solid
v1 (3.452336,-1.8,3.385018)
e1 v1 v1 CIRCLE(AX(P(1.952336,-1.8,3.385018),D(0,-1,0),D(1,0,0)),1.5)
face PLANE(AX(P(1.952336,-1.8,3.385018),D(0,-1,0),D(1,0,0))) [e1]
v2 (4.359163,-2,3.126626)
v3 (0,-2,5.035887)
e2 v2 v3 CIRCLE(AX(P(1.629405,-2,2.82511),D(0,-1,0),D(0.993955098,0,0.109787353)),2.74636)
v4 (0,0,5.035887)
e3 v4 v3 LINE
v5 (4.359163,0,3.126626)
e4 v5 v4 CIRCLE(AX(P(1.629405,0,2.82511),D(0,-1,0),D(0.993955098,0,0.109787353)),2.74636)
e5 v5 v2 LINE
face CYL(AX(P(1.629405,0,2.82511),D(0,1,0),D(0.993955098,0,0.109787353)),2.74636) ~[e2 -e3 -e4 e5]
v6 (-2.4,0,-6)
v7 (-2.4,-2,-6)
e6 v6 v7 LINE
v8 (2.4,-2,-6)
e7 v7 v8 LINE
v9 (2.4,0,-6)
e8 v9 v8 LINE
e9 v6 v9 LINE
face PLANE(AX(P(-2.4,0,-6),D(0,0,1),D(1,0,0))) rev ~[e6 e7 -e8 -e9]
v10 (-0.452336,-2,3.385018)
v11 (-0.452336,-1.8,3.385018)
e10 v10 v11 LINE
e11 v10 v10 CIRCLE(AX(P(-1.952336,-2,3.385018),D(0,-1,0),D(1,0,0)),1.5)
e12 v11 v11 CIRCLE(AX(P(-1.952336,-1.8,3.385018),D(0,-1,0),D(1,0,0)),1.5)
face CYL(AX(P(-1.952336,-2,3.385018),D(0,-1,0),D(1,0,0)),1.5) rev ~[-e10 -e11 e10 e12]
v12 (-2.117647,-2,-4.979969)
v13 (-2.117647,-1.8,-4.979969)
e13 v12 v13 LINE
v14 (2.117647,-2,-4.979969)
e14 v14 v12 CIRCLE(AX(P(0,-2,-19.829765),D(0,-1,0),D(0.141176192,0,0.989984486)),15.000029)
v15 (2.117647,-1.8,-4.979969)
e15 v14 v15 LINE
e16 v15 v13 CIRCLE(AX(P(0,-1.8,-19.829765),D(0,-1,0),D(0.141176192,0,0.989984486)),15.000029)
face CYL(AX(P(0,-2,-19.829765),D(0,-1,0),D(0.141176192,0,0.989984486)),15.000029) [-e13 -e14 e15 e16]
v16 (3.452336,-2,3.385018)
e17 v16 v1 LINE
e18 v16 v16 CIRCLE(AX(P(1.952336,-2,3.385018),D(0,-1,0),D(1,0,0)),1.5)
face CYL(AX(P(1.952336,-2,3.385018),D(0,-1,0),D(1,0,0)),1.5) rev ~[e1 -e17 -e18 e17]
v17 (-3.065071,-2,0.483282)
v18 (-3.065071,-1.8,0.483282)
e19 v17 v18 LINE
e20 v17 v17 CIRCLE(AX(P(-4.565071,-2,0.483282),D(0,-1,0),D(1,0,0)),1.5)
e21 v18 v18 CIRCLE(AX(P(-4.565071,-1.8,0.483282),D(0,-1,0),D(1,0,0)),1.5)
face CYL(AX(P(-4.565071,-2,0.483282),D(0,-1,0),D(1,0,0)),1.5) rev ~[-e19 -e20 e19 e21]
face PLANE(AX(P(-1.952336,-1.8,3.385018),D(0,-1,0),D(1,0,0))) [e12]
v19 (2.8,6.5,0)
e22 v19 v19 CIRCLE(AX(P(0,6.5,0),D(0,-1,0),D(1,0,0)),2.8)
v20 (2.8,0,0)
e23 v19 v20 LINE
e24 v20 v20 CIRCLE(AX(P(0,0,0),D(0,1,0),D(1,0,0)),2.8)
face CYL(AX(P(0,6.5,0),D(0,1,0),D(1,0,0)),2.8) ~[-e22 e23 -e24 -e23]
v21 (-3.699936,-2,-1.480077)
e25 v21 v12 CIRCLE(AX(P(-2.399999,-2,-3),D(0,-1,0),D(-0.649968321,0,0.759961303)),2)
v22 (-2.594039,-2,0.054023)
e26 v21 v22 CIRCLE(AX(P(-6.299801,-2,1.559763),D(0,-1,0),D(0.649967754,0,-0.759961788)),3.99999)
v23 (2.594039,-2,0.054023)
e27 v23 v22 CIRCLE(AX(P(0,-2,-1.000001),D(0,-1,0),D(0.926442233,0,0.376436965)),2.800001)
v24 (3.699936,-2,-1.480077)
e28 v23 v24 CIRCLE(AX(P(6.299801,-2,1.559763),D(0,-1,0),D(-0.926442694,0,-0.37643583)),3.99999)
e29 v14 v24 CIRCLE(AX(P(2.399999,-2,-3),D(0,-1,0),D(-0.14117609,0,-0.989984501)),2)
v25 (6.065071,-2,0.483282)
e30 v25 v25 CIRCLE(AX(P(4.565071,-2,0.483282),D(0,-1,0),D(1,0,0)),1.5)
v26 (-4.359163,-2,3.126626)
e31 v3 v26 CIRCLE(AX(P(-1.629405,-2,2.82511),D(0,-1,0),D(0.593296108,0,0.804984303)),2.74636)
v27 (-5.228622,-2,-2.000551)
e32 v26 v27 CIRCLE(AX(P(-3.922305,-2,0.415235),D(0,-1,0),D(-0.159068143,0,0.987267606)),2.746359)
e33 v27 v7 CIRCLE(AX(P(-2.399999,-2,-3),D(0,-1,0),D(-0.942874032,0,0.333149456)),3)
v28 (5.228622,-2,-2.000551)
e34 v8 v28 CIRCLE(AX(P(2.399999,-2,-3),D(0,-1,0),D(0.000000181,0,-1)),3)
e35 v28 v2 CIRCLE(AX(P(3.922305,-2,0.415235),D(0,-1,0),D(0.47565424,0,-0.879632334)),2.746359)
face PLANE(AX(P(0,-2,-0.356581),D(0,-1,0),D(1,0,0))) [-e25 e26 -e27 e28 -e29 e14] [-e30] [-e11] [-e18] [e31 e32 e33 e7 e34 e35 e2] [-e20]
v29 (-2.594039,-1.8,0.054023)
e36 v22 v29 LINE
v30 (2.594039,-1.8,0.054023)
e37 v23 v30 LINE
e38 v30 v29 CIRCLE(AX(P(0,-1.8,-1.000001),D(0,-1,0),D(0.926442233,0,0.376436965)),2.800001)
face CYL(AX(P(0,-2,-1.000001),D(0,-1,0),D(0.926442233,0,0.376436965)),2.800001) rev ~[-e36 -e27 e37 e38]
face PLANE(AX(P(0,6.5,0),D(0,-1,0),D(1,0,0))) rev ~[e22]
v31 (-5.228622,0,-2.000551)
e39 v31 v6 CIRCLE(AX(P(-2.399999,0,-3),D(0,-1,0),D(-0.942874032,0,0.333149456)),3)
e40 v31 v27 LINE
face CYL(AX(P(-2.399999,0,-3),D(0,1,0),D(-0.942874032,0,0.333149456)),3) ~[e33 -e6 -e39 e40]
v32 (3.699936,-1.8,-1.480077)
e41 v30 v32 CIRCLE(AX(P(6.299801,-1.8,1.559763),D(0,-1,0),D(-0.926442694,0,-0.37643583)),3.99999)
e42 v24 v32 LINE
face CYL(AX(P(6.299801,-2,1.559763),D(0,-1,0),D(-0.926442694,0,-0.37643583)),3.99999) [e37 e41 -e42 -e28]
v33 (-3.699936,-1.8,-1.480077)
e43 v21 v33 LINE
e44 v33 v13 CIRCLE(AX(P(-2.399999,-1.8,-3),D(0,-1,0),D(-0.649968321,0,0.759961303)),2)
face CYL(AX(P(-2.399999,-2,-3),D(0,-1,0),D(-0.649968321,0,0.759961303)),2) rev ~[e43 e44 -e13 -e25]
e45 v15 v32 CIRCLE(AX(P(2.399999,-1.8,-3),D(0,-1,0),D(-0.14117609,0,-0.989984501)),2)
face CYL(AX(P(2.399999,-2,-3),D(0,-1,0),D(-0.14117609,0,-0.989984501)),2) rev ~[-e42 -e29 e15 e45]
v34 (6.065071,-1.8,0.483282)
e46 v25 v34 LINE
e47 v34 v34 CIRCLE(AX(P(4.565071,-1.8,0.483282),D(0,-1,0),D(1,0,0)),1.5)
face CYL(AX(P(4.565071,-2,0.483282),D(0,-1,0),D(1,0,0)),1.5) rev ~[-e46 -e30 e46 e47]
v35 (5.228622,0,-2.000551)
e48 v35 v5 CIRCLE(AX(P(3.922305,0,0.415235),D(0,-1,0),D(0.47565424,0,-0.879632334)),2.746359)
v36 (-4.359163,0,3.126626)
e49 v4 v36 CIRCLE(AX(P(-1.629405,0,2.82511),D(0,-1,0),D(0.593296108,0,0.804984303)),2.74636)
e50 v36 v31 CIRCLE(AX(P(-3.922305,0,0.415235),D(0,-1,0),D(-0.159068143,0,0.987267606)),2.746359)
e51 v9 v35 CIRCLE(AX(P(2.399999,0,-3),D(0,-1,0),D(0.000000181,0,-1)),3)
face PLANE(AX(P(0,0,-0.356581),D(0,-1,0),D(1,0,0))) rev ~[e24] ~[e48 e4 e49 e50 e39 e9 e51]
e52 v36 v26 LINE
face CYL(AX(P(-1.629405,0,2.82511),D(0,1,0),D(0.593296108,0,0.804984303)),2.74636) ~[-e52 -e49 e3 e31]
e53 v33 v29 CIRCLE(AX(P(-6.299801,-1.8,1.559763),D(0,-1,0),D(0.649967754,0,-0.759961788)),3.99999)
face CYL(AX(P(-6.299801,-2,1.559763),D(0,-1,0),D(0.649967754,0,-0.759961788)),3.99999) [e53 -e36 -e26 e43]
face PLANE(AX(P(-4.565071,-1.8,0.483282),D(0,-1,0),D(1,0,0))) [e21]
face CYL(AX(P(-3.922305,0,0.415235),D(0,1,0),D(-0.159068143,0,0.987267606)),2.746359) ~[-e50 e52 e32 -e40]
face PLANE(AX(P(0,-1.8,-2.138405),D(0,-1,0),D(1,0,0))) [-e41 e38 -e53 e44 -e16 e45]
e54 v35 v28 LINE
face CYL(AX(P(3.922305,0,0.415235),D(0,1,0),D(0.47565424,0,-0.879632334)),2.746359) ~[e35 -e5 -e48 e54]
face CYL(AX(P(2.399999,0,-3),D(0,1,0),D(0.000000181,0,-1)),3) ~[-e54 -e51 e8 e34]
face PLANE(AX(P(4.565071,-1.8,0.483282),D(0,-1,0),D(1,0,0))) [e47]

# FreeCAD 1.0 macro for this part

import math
import FreeCAD as App
import Part
import Sketcher
from FreeCAD import Vector

doc = App.newDocument("Part")
body = doc.addObject("PartDesign::Body", "Body")

sketch1 = body.newObject("Sketcher::SketchObject", "Sketch")
sketch1.AttachmentSupport = (doc.getObject("XZ_Plane"), [""])
sketch1.MapMode = "FlatFace"
sketch1.AttachmentOffset = App.Placement(Vector(0, 0, -6.5), App.Rotation())
sketch1.addGeometry(Part.Circle(Vector(0, 0, 0), Vector(0, 0, 1), 2.8), False)
sketch1.addConstraint(Sketcher.Constraint("Coincident", 0, 3, -1, 1))
sketch1.addConstraint(Sketcher.Constraint("Diameter", 0, 5.6))
pad1 = body.newObject("PartDesign::Pad", "Pad")
pad1.Profile = sketch1
pad1.Length = 7.5

sketch2 = body.newObject("Sketcher::SketchObject", "Sketch001")
sketch2.AttachmentSupport = (doc.getObject("XZ_Plane"), [""])
sketch2.MapMode = "FlatFace"
sketch2.addGeometry(Part.ArcOfCircle(Part.Circle(Vector(-3.922305, 0.415235, 0), Vector(0, 0, 1), 2.746359), math.radians(99.152812), math.radians(241.598044)), False)
sketch2.addGeometry(Part.ArcOfCircle(Part.Circle(Vector(-2.399999, -3, 0), Vector(0, 0, 1), 3), math.radians(160.539953), math.radians(269.99999)), False)
sketch2.addGeometry(Part.LineSegment(Vector(-2.4, -6, 0), Vector(2.4, -6, 0)), False)
sketch2.addGeometry(Part.ArcOfCircle(Part.Circle(Vector(2.399999, -3, 0), Vector(0, 0, 1), 3), math.radians(-89.99999), math.radians(19.460047)), False)
sketch2.addGeometry(Part.ArcOfCircle(Part.Circle(Vector(3.922305, 0.415235, 0), Vector(0, 0, 1), 2.746359), math.radians(-61.598044), math.radians(80.847188)), False)
sketch2.addGeometry(Part.ArcOfCircle(Part.Circle(Vector(1.629405, 2.82511, 0), Vector(0, 0, 1), 2.74636), math.radians(6.303058), math.radians(126.391261)), False)
sketch2.addGeometry(Part.ArcOfCircle(Part.Circle(Vector(-1.629405, 2.82511, 0), Vector(0, 0, 1), 2.74636), math.radians(53.608739), math.radians(173.696942)), False)
sketch2.addConstraint(Sketcher.Constraint("Coincident", 0, 2, 1, 1))
sketch2.addConstraint(Sketcher.Constraint("Tangent", 1, 2, 2, 1))
sketch2.addConstraint(Sketcher.Constraint("Tangent", 2, 2, 3, 1))
sketch2.addConstraint(Sketcher.Constraint("Coincident", 3, 2, 4, 1))
sketch2.addConstraint(Sketcher.Constraint("Coincident", 4, 2, 5, 1))
sketch2.addConstraint(Sketcher.Constraint("Coincident", 5, 2, 6, 1))
sketch2.addConstraint(Sketcher.Constraint("Coincident", 6, 2, 0, 1))
sketch2.addConstraint(Sketcher.Constraint("Horizontal", 2))
sketch2.addConstraint(Sketcher.Constraint("Equal", 1, 3))
sketch2.addConstraint(Sketcher.Constraint("Equal", 0, 4))
sketch2.addConstraint(Sketcher.Constraint("Equal", 4, 5))
sketch2.addConstraint(Sketcher.Constraint("Equal", 5, 6))
sketch2.addConstraint(Sketcher.Constraint("Symmetric", 0, 3, 4, 3, -2))
sketch2.addConstraint(Sketcher.Constraint("Symmetric", 5, 3, 6, 3, -2))
sketch2.addConstraint(Sketcher.Constraint("Horizontal", 0, 2, 3, 2))
sketch2.addConstraint(Sketcher.Constraint("Radius", 1, 3.0))
sketch2.addConstraint(Sketcher.Constraint("DistanceX", 2, 1, 2, 2, 4.8))
sketch2.addConstraint(Sketcher.Constraint("DistanceY", 1, 3, -1, 1, 3.0))
sketch2.addConstraint(Sketcher.Constraint("Radius", 0, 2.746359))
sketch2.addConstraint(Sketcher.Constraint("DistanceX", 5, 3, 4, 3, 2.2929))
sketch2.addConstraint(Sketcher.Constraint("DistanceY", -1, 1, 5, 3, 2.82511))
sketch2.addConstraint(Sketcher.Constraint("DistanceX", 0, 2, -1, 1, 5.228622))
sketch2.addConstraint(Sketcher.Constraint("DistanceX", 0, 3, 4, 3, 7.84461))
pad2 = body.newObject("PartDesign::Pad", "Pad001")
pad2.Profile = sketch2
pad2.Length = 2

sketch3 = body.newObject("Sketcher::SketchObject", "Sketch002")
sketch3.AttachmentSupport = (doc.getObject("XZ_Plane"), [""])
sketch3.MapMode = "FlatFace"
sketch3.AttachmentOffset = App.Placement(Vector(0, 0, 2), App.Rotation())
sketch3.addGeometry(Part.Circle(Vector(-4.565071, 0.483282, 0), Vector(0, 0, 1), 1.5), False)
sketch3.addGeometry(Part.Circle(Vector(4.565071, 0.483282, 0), Vector(0, 0, 1), 1.5), False)
sketch3.addGeometry(Part.Circle(Vector(-1.952336, 3.385018, 0), Vector(0, 0, 1), 1.5), False)
sketch3.addGeometry(Part.Circle(Vector(1.952336, 3.385018, 0), Vector(0, 0, 1), 1.5), False)
sketch3.addGeometry(Part.ArcOfCircle(Part.Circle(Vector(0, -1.000001, 0), Vector(0, 0, 1), 2.800001), math.radians(22.113154), math.radians(157.886846)), False)
sketch3.addGeometry(Part.ArcOfCircle(Part.Circle(Vector(-6.299801, 1.559763, 0), Vector(0, 0, 1), 3.99999), math.radians(-49.460829), math.radians(-22.113084)), False)
sketch3.addGeometry(Part.ArcOfCircle(Part.Circle(Vector(-2.399999, -3, 0), Vector(0, 0, 1), 2), math.radians(130.539213), math.radians(278.115907)), False)
sketch3.addGeometry(Part.ArcOfCircle(Part.Circle(Vector(0, -19.829765, 0), Vector(0, 0, 1), 15.000029), math.radians(81.884087), math.radians(98.115913)), False)
sketch3.addGeometry(Part.ArcOfCircle(Part.Circle(Vector(2.399999, -3, 0), Vector(0, 0, 1), 2), math.radians(-98.115907), math.radians(49.460787)), False)
sketch3.addGeometry(Part.ArcOfCircle(Part.Circle(Vector(6.299801, 1.559763, 0), Vector(0, 0, 1), 3.99999), math.radians(-157.886916), math.radians(-130.539171)), False)
sketch3.addConstraint(Sketcher.Constraint("Tangent", 4, 2, 5, 2))
sketch3.addConstraint(Sketcher.Constraint("Tangent", 5, 1, 6, 1))
sketch3.addConstraint(Sketcher.Constraint("Tangent", 6, 2, 7, 2))
sketch3.addConstraint(Sketcher.Constraint("Tangent", 7, 1, 8, 1))
sketch3.addConstraint(Sketcher.Constraint("Tangent", 8, 2, 9, 2))
sketch3.addConstraint(Sketcher.Constraint("Tangent", 9, 1, 4, 1))
sketch3.addConstraint(Sketcher.Constraint("Equal", 0, 1))
sketch3.addConstraint(Sketcher.Constraint("Equal", 1, 2))
sketch3.addConstraint(Sketcher.Constraint("Equal", 2, 3))
sketch3.addConstraint(Sketcher.Constraint("Equal", 6, 8))
sketch3.addConstraint(Sketcher.Constraint("Equal", 5, 9))
sketch3.addConstraint(Sketcher.Constraint("Symmetric", 0, 3, 1, 3, -2))
sketch3.addConstraint(Sketcher.Constraint("Symmetric", 2, 3, 3, 3, -2))
sketch3.addConstraint(Sketcher.Constraint("Symmetric", 6, 3, 8, 3, -2))
sketch3.addConstraint(Sketcher.Constraint("PointOnObject", 4, 3, -2))
sketch3.addConstraint(Sketcher.Constraint("Diameter", 0, 3.0))
sketch3.addConstraint(Sketcher.Constraint("Radius", 6, 2.0))
sketch3.addConstraint(Sketcher.Constraint("Radius", 4, 2.800001))
sketch3.addConstraint(Sketcher.Constraint("DistanceY", 4, 3, -1, 1, 1.000001))
sketch3.addConstraint(Sketcher.Constraint("DistanceY", 6, 3, -1, 1, 3.0))
sketch3.addConstraint(Sketcher.Constraint("DistanceX", 6, 3, -1, 1, 2.399999))
sketch3.addConstraint(Sketcher.Constraint("Radius", 5, 3.99999))
sketch3.addConstraint(Sketcher.Constraint("Radius", 7, 15.000029))
sketch3.addConstraint(Sketcher.Constraint("DistanceX", 0, 3, -1, 1, 4.565071))
sketch3.addConstraint(Sketcher.Constraint("DistanceY", -1, 1, 2, 3, 3.385018))
sketch3.addConstraint(Sketcher.Constraint("DistanceY", 0, 3, 5, 3, 1.076481))
sketch3.addConstraint(Sketcher.Constraint("DistanceX", 2, 3, -1, 1, 1.952336))
pocket1 = body.newObject("PartDesign::Pocket", "Pocket")
pocket1.Profile = sketch3
pocket1.Length = 0.2

doc.recompute()
